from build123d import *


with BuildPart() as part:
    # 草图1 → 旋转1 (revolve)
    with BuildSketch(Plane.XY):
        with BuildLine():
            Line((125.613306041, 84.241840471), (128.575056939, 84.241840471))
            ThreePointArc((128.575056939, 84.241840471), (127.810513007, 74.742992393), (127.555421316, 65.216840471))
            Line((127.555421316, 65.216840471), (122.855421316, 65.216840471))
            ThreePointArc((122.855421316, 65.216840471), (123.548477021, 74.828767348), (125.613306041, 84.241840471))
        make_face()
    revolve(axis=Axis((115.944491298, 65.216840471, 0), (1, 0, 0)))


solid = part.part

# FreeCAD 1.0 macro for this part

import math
import FreeCAD as App
import Part
import Sketcher
Q = App.Units.Quantity

doc = App.newDocument("Part")
body = doc.addObject("PartDesign::Body", "Body")

# Sketch on XY plane
sketch1 = body.newObject("Sketcher::SketchObject", "Sketch")
sketch1.AttachmentSupport = (doc.getObject("XY_Plane"), [""])
sketch1.MapMode = "FlatFace"
sketch1.addGeometry(Part.LineSegment(App.Vector(128.575057, 84.24184, 0), App.Vector(125.613306, 84.24184, 0)), False)
sketch1.addGeometry(Part.ArcOfCircle(Part.Circle(App.Vector(189.855421, 65.21684, 0), App.Vector(0, 0, 1), 67), math.radians(163.503593), math.radians(180)), False)
sketch1.addGeometry(Part.LineSegment(App.Vector(122.855421, 65.21684, 0), App.Vector(127.555421, 65.21684, 0)), False)
sketch1.addGeometry(Part.ArcOfCircle(Part.Circle(App.Vector(305.555421, 65.21684, 0), App.Vector(0, 0, 1), 178), math.radians(173.864391), math.radians(180)), False)
sketch1.addGeometry(Part.LineSegment(App.Vector(122.855421, 65.21684, 0), App.Vector(305.555421, 65.21684, 0)), True)  # axis
sketch1.addConstraint(Sketcher.Constraint("Coincident", 0, 2, 1, 1))
sketch1.addConstraint(Sketcher.Constraint("Coincident", 1, 2, 2, 1))
sketch1.addConstraint(Sketcher.Constraint("Coincident", 2, 2, 3, 2))
sketch1.addConstraint(Sketcher.Constraint("Coincident", 3, 1, 0, 1))
sketch1.addConstraint(Sketcher.Constraint("Horizontal", 0))
sketch1.addConstraint(Sketcher.Constraint("Horizontal", 2))
sketch1.addConstraint(Sketcher.Constraint("Horizontal", 4))
sketch1.addConstraint(Sketcher.Constraint("Coincident", 4, 1, 1, 2))
sketch1.addConstraint(Sketcher.Constraint("Coincident", 4, 2, 3, 3))
sketch1.addConstraint(Sketcher.Constraint("Horizontal", 1, 3, 3, 3))
sketch1.addConstraint(Sketcher.Constraint("Radius", 1, Q("67 mm")))
sketch1.addConstraint(Sketcher.Constraint("Radius", 3, Q("178 mm")))
sketch1.addConstraint(Sketcher.Constraint("DistanceX", 2, 1, 2, 2, Q("4.7 mm")))
sketch1.addConstraint(Sketcher.Constraint("DistanceY", 1, 3, 0, 2, Q("19.025 mm")))
sketch1.addConstraint(Sketcher.Constraint("DistanceX", -1, 1, 1, 3, Q("189.855421 mm")))
sketch1.addConstraint(Sketcher.Constraint("DistanceY", -1, 1, 1, 3, Q("65.21684 mm")))
revolution = body.newObject("PartDesign::Revolution", "Revolution")
revolution.Profile = sketch1
revolution.ReferenceAxis = (sketch1, ["Axis0"])
revolution.Angle = 360

doc.recompute()
